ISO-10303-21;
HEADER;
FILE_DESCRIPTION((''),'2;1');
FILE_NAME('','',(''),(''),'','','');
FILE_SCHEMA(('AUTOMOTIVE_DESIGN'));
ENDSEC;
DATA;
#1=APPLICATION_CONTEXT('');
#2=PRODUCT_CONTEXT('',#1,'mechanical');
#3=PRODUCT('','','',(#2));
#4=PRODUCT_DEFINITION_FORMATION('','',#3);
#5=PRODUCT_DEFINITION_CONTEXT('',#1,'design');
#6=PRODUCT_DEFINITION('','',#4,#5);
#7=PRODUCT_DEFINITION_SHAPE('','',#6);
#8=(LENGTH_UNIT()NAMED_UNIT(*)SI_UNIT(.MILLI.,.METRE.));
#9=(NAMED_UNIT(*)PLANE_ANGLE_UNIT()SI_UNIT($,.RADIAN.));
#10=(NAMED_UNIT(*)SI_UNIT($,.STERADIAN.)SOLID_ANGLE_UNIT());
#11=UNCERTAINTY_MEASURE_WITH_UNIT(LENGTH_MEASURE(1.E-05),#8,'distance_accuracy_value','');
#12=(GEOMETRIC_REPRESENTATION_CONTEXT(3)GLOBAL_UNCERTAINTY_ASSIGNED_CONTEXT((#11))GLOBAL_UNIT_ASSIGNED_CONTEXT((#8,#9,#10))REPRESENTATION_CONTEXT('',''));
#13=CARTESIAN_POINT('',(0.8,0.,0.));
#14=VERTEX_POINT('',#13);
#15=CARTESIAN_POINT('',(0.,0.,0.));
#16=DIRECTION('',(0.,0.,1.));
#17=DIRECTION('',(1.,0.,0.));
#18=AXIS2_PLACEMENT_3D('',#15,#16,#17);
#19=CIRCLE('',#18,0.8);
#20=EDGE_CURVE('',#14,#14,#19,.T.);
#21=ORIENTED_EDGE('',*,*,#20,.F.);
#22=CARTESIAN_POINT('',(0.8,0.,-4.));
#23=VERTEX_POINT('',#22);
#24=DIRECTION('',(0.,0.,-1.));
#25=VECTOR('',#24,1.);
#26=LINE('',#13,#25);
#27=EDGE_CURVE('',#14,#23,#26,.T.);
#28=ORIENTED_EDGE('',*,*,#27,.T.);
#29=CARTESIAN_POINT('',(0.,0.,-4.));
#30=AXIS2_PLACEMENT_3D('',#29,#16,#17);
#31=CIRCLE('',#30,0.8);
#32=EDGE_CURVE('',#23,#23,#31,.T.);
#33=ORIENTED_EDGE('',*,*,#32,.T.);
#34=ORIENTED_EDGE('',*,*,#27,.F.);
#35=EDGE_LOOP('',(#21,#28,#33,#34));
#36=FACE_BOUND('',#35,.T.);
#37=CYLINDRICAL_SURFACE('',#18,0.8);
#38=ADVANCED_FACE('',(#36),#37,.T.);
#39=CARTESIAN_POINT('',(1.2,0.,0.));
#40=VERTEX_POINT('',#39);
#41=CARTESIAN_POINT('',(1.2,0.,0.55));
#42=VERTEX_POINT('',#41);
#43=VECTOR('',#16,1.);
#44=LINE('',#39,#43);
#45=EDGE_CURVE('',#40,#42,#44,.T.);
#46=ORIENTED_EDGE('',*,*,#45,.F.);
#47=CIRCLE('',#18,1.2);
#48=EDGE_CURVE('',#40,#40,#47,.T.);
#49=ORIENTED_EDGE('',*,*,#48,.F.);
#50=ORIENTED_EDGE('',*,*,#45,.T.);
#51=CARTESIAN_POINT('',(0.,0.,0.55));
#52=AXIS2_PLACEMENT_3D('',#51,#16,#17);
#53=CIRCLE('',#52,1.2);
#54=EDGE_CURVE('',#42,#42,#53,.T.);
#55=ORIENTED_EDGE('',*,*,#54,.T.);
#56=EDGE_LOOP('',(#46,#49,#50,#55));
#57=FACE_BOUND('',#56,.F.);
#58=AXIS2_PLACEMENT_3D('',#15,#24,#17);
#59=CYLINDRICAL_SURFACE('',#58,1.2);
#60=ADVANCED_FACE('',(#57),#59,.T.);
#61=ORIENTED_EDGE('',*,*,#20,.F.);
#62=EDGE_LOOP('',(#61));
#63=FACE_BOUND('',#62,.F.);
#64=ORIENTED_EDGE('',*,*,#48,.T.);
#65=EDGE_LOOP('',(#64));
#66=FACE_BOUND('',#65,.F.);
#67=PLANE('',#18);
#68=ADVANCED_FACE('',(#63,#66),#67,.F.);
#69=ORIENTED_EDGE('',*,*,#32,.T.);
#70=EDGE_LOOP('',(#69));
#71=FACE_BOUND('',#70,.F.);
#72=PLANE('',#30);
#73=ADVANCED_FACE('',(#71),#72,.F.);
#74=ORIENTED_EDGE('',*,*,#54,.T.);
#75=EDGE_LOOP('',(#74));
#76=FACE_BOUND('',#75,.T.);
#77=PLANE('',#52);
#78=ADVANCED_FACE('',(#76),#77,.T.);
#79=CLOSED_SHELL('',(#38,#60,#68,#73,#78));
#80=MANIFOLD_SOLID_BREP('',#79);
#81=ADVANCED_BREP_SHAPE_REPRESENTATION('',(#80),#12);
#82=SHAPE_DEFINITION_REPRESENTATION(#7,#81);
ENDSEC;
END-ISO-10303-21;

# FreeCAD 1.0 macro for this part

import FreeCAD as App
import Part
import Sketcher
from FreeCAD import Vector

doc = App.newDocument("Part")
body = doc.addObject("PartDesign::Body", "Body")

sketch1 = body.newObject("Sketcher::SketchObject", "Sketch")
sketch1.AttachmentSupport = (doc.getObject("XY_Plane"), [""])
sketch1.MapMode = "FlatFace"
sketch1.addGeometry(Part.Circle(Vector(0, 0, 0), Vector(0, 0, 1), 1.2), False)
sketch1.addConstraint(Sketcher.Constraint("Coincident", 0, 3, -1, 1))
sketch1.addConstraint(Sketcher.Constraint("Diameter", 0, 2.4))
pad1 = body.newObject("PartDesign::Pad", "Pad")
pad1.Profile = sketch1
pad1.Length = 0.55

sketch2 = body.newObject("Sketcher::SketchObject", "Sketch001")
sketch2.AttachmentSupport = (doc.getObject("XY_Plane"), [""])
sketch2.MapMode = "FlatFace"
sketch2.addGeometry(Part.Circle(Vector(0, 0, 0), Vector(0, 0, 1), 0.8), False)
sketch2.addConstraint(Sketcher.Constraint("Coincident", 0, 3, -1, 1))
sketch2.addConstraint(Sketcher.Constraint("Diameter", 0, 1.6))
pad2 = body.newObject("PartDesign::Pad", "Pad001")
pad2.Profile = sketch2
pad2.Length = 4
pad2.Reversed = True

doc.recompute()
